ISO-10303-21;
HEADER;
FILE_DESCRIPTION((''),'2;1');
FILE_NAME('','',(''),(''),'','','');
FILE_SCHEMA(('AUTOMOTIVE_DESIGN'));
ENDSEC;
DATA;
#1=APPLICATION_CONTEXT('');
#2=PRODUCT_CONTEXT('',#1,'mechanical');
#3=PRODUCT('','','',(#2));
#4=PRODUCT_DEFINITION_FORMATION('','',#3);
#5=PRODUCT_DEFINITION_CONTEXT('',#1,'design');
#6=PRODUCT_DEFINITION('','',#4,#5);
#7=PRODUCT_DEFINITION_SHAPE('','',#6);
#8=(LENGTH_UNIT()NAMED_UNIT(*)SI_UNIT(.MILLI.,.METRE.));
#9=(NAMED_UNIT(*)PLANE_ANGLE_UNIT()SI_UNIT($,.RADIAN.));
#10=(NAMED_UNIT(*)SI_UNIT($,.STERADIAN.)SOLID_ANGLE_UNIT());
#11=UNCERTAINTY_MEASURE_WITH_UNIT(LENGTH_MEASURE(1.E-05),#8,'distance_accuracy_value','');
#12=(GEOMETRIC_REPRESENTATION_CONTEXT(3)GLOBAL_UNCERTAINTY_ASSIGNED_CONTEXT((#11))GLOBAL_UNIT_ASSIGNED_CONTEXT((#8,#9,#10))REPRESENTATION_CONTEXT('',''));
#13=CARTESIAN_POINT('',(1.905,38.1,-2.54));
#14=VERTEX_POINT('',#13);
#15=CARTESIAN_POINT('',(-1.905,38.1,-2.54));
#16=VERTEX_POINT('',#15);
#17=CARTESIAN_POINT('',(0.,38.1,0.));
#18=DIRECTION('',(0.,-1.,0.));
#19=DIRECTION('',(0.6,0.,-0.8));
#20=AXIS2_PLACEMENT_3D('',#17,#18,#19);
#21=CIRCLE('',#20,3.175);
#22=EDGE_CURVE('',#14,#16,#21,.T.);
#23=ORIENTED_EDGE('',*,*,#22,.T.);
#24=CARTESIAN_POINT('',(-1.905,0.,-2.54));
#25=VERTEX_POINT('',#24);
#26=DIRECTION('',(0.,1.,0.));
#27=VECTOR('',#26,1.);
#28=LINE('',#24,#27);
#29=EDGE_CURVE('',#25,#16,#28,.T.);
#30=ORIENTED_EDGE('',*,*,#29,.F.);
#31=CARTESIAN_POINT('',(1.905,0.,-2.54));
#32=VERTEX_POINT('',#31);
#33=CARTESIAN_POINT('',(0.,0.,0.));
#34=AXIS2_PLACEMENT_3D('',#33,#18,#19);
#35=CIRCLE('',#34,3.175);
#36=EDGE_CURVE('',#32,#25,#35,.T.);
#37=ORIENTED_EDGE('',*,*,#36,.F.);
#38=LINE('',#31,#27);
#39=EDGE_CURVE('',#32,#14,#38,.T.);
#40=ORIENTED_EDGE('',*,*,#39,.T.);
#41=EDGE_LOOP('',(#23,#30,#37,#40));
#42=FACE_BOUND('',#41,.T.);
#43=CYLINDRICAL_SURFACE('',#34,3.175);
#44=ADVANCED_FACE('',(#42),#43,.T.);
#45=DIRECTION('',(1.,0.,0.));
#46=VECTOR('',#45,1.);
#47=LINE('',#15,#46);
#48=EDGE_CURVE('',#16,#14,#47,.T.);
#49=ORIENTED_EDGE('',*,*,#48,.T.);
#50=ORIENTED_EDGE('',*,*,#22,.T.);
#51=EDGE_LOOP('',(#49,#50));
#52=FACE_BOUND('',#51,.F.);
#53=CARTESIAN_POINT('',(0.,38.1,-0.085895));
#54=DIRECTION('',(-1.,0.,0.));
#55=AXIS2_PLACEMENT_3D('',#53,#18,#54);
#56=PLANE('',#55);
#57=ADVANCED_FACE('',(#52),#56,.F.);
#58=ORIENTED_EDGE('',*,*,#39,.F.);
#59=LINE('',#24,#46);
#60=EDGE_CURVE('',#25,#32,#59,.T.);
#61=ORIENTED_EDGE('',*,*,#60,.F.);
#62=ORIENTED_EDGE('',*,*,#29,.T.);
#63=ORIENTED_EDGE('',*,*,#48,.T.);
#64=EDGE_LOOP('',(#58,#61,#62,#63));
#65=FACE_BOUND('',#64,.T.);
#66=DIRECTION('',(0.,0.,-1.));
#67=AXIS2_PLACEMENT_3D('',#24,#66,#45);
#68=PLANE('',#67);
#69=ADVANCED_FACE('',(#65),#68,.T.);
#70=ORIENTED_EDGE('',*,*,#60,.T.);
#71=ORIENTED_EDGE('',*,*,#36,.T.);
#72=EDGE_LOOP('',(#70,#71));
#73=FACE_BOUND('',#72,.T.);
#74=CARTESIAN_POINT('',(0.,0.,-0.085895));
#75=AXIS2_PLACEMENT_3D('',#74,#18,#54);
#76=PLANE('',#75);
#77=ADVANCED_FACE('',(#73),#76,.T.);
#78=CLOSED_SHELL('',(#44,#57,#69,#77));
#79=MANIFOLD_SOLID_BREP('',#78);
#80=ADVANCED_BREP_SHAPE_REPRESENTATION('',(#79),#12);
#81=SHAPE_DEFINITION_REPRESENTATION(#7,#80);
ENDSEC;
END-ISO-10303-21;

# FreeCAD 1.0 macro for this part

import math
import FreeCAD as App
import Part
import Sketcher
Q = App.Units.Quantity

doc = App.newDocument("Part")
body = doc.addObject("PartDesign::Body", "Body")

sketch1 = body.newObject("Sketcher::SketchObject", "Sketch")
sketch1.AttachmentSupport = (doc.getObject("XZ_Plane"), [""])
sketch1.MapMode = "FlatFace"
sketch1.addGeometry([
    Part.LineSegment(App.Vector(1.9, -2.5, 0), App.Vector(-1.9, -2.5, 0)),
    Part.ArcOfCircle(Part.Circle(App.Vector(0, 0, 0), App.Vector(0, 0, 1), 3.2), math.radians(-53), math.radians(233)),
], False)
sketch1.addConstraint([
    Sketcher.Constraint("Coincident", 0, 1, 1, 1),
    Sketcher.Constraint("Coincident", 1, 2, 0, 2),
    Sketcher.Constraint("Horizontal", 0),
    Sketcher.Constraint("Coincident", 1, 3, -1, 1),
    Sketcher.Constraint("Radius", 1, Q("0.125 in")),
    Sketcher.Constraint("DistanceX", 0, 2, 0, 1, Q("0.15 in")),
])
pad1 = body.newObject("PartDesign::Pad", "Pad")
pad1.Profile = sketch1
pad1.Length = Q("1.5 in")
pad1.Reversed = True

doc.recompute()
